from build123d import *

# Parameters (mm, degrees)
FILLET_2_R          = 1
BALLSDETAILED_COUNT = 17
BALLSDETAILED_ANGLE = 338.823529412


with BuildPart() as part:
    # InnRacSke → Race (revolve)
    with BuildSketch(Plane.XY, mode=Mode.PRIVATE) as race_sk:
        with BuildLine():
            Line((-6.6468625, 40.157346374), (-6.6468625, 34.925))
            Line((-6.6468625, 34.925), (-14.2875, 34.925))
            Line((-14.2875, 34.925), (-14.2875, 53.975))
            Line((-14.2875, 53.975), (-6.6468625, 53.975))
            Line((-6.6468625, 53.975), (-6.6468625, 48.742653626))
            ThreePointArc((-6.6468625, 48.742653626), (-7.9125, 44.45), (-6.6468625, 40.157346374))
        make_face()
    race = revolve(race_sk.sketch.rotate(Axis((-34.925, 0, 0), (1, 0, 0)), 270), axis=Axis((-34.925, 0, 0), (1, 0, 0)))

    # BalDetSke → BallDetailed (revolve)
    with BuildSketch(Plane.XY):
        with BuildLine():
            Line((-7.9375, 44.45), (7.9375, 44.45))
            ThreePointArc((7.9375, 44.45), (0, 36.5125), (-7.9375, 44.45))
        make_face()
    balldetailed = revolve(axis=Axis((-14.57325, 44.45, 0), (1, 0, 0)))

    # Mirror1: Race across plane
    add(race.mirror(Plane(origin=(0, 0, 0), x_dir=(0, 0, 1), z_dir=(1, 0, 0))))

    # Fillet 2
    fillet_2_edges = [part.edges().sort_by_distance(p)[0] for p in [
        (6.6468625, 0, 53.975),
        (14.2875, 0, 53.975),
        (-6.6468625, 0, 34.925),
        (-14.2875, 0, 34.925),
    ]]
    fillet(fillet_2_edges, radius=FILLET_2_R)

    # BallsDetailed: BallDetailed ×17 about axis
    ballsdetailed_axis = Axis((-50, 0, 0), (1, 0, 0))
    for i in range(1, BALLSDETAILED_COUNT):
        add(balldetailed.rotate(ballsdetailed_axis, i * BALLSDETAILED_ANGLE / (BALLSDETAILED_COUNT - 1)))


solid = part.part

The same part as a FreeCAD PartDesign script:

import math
import FreeCAD as App
import Part
import Sketcher

V = App.Vector
Q = App.Units.Quantity


def edges_at(feature, points):
    """Names of the edges that pass closest to the given points."""
    edges = feature.Shape.Edges
    near = lambda p: min(range(len(edges)), key=lambda i: edges[i].distToShape(Part.Vertex(*p))[0])
    return sorted({f"Edge{near(p) + 1}" for p in points})

doc = App.newDocument("Part")
body = doc.addObject("PartDesign::Body", "Body")

# Sketch on XY plane
sketch1 = body.newObject("Sketcher::SketchObject", "Sketch")
sketch1.AttachmentSupport = (doc.getObject("XY_Plane"), [""])
sketch1.MapMode = "FlatFace"
sketch1.addGeometry(Part.LineSegment(V(-7, 35, 0), V(-7, 40, 0)), False)
sketch1.addGeometry(Part.ArcOfCircle(Part.Circle(V(0, 44, 0), V(0, 0, 1), 8), math.radians(147), math.radians(213)), False)
sketch1.addGeometry(Part.LineSegment(V(-7, 49, 0), V(-7, 54, 0)), False)
sketch1.addGeometry(Part.LineSegment(V(-7, 54, 0), V(-14, 54, 0)), False)
sketch1.addGeometry(Part.LineSegment(V(-14, 54, 0), V(-14, 35, 0)), False)
sketch1.addGeometry(Part.LineSegment(V(-14, 35, 0), V(-7, 35, 0)), False)
sketch1.addConstraint(Sketcher.Constraint("Coincident", 0, 2, 1, 2))
sketch1.addConstraint(Sketcher.Constraint("Coincident", 1, 1, 2, 1))
sketch1.addConstraint(Sketcher.Constraint("Coincident", 2, 2, 3, 1))
sketch1.addConstraint(Sketcher.Constraint("Coincident", 3, 2, 4, 1))
sketch1.addConstraint(Sketcher.Constraint("Coincident", 4, 2, 5, 1))
sketch1.addConstraint(Sketcher.Constraint("Coincident", 5, 2, 0, 1))
sketch1.addConstraint(Sketcher.Constraint("Vertical", 0))
sketch1.addConstraint(Sketcher.Constraint("Vertical", 2))
sketch1.addConstraint(Sketcher.Constraint("Horizontal", 3))
sketch1.addConstraint(Sketcher.Constraint("Vertical", 4))
sketch1.addConstraint(Sketcher.Constraint("Horizontal", 5))
sketch1.addConstraint(Sketcher.Constraint("PointOnObject", 1, 3, -2))
sketch1.addConstraint(Sketcher.Constraint("Vertical", 0, 2, 1, 1))
sketch1.addConstraint(Sketcher.Constraint("Equal", 0, 2))
sketch1.addConstraint(Sketcher.Constraint("DistanceY", 4, 2, 4, 1, Q("0.75 in")))
sketch1.addConstraint(Sketcher.Constraint("DistanceY", -1, 1, 1, 3, Q("1.75 in")))
sketch1.addConstraint(Sketcher.Constraint("Radius", 1, 7.9125))
sketch1.addConstraint(Sketcher.Constraint("DistanceX", 3, 2, -1, 1, Q("0.5625 in")))
sketch1.addConstraint(Sketcher.Constraint("DistanceX", 3, 2, 3, 1, 7.640637))
revolution = body.newObject("PartDesign::Revolution", "Revolution")
revolution.Profile = sketch1
revolution.ReferenceAxis = (sketch1, ["H_Axis"])
revolution.Angle = 360

# Sketch on XY plane
sketch2 = body.newObject("Sketcher::SketchObject", "Sketch001")
sketch2.AttachmentSupport = (doc.getObject("XY_Plane"), [""])
sketch2.MapMode = "FlatFace"
sketch2.addGeometry(Part.LineSegment(V(8, 44, 0), V(-8, 44, 0)), False)
sketch2.addGeometry(Part.ArcOfCircle(Part.Circle(V(0, 44, 0), V(0, 0, 1), 8), math.radians(180), math.radians(360)), False)
sketch2.addGeometry(Part.LineSegment(V(-8, 44, 0), V(8, 44, 0)), True)  # axis
sketch2.addConstraint(Sketcher.Constraint("Coincident", 0, 1, 1, 2))
sketch2.addConstraint(Sketcher.Constraint("Coincident", 1, 1, 0, 2))
sketch2.addConstraint(Sketcher.Constraint("Horizontal", 0))
sketch2.addConstraint(Sketcher.Constraint("Horizontal", 2))
sketch2.addConstraint(Sketcher.Constraint("Coincident", 2, 1, 1, 1))
sketch2.addConstraint(Sketcher.Constraint("PointOnObject", 1, 3, -2))
sketch2.addConstraint(Sketcher.Constraint("Horizontal", 1, 3, 0, 1))
sketch2.addConstraint(Sketcher.Constraint("Equal", 0, 2))
sketch2.addConstraint(Sketcher.Constraint("Radius", 1, Q("0.3125 in")))
sketch2.addConstraint(Sketcher.Constraint("DistanceY", -1, 1, 1, 3, Q("1.75 in")))
revolution2 = body.newObject("PartDesign::Revolution", "Revolution001")
revolution2.Profile = sketch2
revolution2.ReferenceAxis = (sketch2, ["Axis0"])
revolution2.Angle = 360
doc.recompute()

mirrored = body.newObject("PartDesign::Mirrored", "Mirrored")
mirrored.Originals = [revolution]
mirrored.MirrorPlane = (doc.getObject("YZ_Plane"), [""])
body.Tip = mirrored
doc.recompute()

fillet = body.newObject("PartDesign::Fillet", "Fillet")
fillet.Base = (mirrored, edges_at(mirrored, [
    (6.647, 0, 53.975),
    (14.287, 0, 53.975),
    (-6.647, 0, 34.925),
    (-14.287, 0, 34.925),
]))
fillet.Radius = 1
doc.recompute()

polarpattern = body.newObject("PartDesign::PolarPattern", "PolarPattern")
polarpattern.Originals = [revolution2]
polarpattern.Axis = (doc.getObject("X_Axis"), [""])
polarpattern.Angle = 360
polarpattern.Occurrences = 17
body.Tip = polarpattern

doc.recompute()
